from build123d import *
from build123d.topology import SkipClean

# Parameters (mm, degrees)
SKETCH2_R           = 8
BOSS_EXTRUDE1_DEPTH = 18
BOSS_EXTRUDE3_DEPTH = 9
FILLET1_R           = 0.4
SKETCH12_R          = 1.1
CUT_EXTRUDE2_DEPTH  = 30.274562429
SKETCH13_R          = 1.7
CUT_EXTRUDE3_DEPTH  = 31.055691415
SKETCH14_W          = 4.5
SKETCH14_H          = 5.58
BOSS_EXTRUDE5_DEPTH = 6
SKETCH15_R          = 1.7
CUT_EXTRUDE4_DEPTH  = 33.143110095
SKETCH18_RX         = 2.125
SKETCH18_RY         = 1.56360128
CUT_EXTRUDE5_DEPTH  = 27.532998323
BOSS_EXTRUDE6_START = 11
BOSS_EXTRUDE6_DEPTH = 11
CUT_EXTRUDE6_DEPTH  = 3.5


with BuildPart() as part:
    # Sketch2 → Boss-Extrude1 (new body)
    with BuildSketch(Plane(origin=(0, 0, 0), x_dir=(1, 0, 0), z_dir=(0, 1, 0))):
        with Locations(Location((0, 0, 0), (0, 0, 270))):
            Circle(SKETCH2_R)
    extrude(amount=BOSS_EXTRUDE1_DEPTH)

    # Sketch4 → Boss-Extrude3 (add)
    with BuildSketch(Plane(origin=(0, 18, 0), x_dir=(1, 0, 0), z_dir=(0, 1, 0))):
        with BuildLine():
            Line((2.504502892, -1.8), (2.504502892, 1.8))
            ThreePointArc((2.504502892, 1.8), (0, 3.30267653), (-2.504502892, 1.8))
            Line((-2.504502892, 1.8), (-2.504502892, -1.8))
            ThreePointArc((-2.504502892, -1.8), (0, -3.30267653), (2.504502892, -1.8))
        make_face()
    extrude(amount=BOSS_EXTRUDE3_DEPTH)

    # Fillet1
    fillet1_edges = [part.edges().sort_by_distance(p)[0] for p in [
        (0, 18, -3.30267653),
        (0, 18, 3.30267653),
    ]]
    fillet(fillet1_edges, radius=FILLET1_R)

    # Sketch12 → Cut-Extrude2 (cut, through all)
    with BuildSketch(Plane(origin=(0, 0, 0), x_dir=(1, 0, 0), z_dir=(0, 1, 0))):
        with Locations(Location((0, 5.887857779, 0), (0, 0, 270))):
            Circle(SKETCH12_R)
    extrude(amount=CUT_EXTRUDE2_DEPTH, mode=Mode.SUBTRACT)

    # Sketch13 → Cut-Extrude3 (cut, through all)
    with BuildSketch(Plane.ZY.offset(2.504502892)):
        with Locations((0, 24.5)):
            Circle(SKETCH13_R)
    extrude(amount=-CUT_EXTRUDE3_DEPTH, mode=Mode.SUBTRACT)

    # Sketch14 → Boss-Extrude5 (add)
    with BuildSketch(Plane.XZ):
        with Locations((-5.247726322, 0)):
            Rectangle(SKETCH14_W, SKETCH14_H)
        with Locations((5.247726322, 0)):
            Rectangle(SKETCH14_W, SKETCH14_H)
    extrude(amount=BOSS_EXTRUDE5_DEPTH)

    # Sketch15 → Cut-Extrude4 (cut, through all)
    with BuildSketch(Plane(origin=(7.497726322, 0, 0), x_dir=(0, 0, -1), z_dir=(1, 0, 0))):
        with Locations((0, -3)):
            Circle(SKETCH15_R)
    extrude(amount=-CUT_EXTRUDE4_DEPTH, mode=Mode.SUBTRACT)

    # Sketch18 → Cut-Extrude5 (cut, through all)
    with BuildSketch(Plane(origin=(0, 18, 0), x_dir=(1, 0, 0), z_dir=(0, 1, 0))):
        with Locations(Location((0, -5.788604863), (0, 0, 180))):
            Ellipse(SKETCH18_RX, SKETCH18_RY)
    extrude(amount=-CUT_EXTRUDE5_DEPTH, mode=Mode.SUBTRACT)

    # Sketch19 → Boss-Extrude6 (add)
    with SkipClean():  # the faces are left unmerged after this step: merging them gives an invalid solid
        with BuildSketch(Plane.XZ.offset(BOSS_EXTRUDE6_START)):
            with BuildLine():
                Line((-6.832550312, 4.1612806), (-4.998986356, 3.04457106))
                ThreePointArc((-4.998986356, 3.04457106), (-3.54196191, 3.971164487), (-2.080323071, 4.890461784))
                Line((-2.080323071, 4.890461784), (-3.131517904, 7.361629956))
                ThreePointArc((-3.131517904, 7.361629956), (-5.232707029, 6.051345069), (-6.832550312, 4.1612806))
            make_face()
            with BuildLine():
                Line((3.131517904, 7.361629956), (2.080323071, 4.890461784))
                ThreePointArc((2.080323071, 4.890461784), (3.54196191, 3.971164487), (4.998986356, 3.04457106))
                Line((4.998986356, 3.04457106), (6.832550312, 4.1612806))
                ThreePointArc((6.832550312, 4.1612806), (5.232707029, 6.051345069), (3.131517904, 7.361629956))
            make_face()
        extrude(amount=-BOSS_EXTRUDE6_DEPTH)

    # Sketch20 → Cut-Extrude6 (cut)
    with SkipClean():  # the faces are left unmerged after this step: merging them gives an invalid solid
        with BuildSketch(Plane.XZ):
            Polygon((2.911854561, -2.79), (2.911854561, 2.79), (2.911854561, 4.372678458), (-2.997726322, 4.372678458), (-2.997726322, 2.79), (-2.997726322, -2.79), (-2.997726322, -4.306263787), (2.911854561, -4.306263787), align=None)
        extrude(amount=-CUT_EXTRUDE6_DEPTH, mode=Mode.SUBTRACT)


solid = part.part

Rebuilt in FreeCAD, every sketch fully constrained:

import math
import FreeCAD as App
import Part
import Sketcher

V = App.Vector


def edges_at(feature, points):
    """Names of the edges that pass closest to the given points."""
    edges = feature.Shape.Edges
    near = lambda p: min(range(len(edges)), key=lambda i: edges[i].distToShape(Part.Vertex(*p))[0])
    return sorted({f"Edge{near(p) + 1}" for p in points})


def add_polygon(sketch, points):
    """Adds a closed chain of lines whose ends are joined by coincident constraints."""
    first, n = sketch.GeometryCount, len(points)
    for a, b in zip(points, points[1:] + points[:1]):
        sketch.addGeometry(Part.LineSegment(App.Vector(*a, 0), App.Vector(*b, 0)), False)
    for i in range(n):
        sketch.addConstraint(Sketcher.Constraint("Coincident", first + i, 2, first + (i + 1) % n, 1))

doc = App.newDocument("Part")
body = doc.addObject("PartDesign::Body", "Body")

sketch1 = body.newObject("Sketcher::SketchObject", "Sketch")
sketch1.AttachmentSupport = (doc.getObject("XZ_Plane"), [""])
sketch1.MapMode = "FlatFace"
sketch1.addGeometry(Part.Circle(V(0, 0, 0), V(0, 0, 1), 8), False)
sketch1.addConstraint([
    Sketcher.Constraint("Coincident", 0, 3, -1, 1),
    Sketcher.Constraint("Diameter", 0, 16.0),
])
pad1 = body.newObject("PartDesign::Pad", "Pad")
pad1.Profile = sketch1
pad1.Length = 18
pad1.Reversed = True

sketch2 = body.newObject("Sketcher::SketchObject", "Sketch001")
sketch2.AttachmentSupport = (doc.getObject("XZ_Plane"), [""])
sketch2.MapMode = "FlatFace"
sketch2.AttachmentOffset = App.Placement(V(0, 0, -18), App.Rotation())
sketch2.addGeometry([
    Part.LineSegment(V(2.5, 1.8, 0), V(2.5, -1.8, 0)),
    Part.ArcOfCircle(Part.Circle(V(0, -0.5, 0), V(0, 0, 1), 2.8), math.radians(-152), math.radians(-28)),
    Part.LineSegment(V(-2.5, -1.8, 0), V(-2.5, 1.8, 0)),
    Part.ArcOfCircle(Part.Circle(V(0, 0.5, 0), V(0, 0, 1), 2.8), math.radians(28), math.radians(152)),
], False)
sketch2.addConstraint([
    Sketcher.Constraint("Coincident", 0, 2, 1, 2),
    Sketcher.Constraint("Coincident", 1, 1, 2, 1),
    Sketcher.Constraint("Coincident", 2, 2, 3, 2),
    Sketcher.Constraint("Coincident", 3, 1, 0, 1),
    Sketcher.Constraint("Vertical", 0),
    Sketcher.Constraint("Vertical", 2),
    Sketcher.Constraint("Equal", 1, 3),
    Sketcher.Constraint("Symmetric", 1, 3, 3, 3, -1, 1),
    Sketcher.Constraint("Symmetric", 0, 2, 1, 1, -2),
    Sketcher.Constraint("DistanceY", 0, 2, 0, 1, 3.6),
    Sketcher.Constraint("Radius", 1, 2.838459),
    Sketcher.Constraint("DistanceY", 1, 3, -1, 1, 0.464218),
])
pad2 = body.newObject("PartDesign::Pad", "Pad001")
pad2.Profile = sketch2
pad2.Length = 9
pad2.Reversed = True
doc.recompute()

fillet = body.newObject("PartDesign::Fillet", "Fillet")
fillet.Base = (pad2, edges_at(pad2, [(0, 18, -3.303), (0, 18, 3.303)]))
fillet.Radius = 0.4

sketch3 = body.newObject("Sketcher::SketchObject", "Sketch002")
sketch3.AttachmentSupport = (doc.getObject("XZ_Plane"), [""])
sketch3.MapMode = "FlatFace"
sketch3.addGeometry(Part.Circle(V(0, -5.9, 0), V(0, 0, 1), 1.1), False)
sketch3.addConstraint([
    Sketcher.Constraint("PointOnObject", 0, 3, -2),
    Sketcher.Constraint("Diameter", 0, 2.2),
    Sketcher.Constraint("DistanceY", 0, 3, -1, 1, 5.887858),
])
pocket1 = body.newObject("PartDesign::Pocket", "Pocket")
pocket1.Profile = sketch3
pocket1.Type = "ThroughAll"

sketch4 = body.newObject("Sketcher::SketchObject", "Sketch003")
sketch4.AttachmentSupport = (doc.getObject("YZ_Plane"), [""])
sketch4.MapMode = "FlatFace"
sketch4.AttachmentOffset = App.Placement(V(0, 0, -2.504503), App.Rotation())
sketch4.addGeometry(Part.Circle(V(24.5, 0, 0), V(0, 0, 1), 1.7), False)
sketch4.addConstraint([
    Sketcher.Constraint("PointOnObject", 0, 3, -1),
    Sketcher.Constraint("Diameter", 0, 3.4),
    Sketcher.Constraint("DistanceX", -1, 1, 0, 3, 24.5),
])
pocket2 = body.newObject("PartDesign::Pocket", "Pocket001")
pocket2.Profile = sketch4
pocket2.Type = "ThroughAll"
pocket2.Reversed = True

sketch5 = body.newObject("Sketcher::SketchObject", "Sketch004")
sketch5.AttachmentSupport = (doc.getObject("XZ_Plane"), [""])
sketch5.MapMode = "FlatFace"
add_polygon(sketch5, [(-7.5, 2.8), (-7.5, -2.8), (-3, -2.8), (-3, 2.8)])
add_polygon(sketch5, [(3, 2.8), (3, -2.8), (7.5, -2.8), (7.5, 2.8)])
sketch5.addConstraint([
    Sketcher.Constraint("Vertical", 0),
    Sketcher.Constraint("Horizontal", 1),
    Sketcher.Constraint("Vertical", 2),
    Sketcher.Constraint("Horizontal", 3),
    Sketcher.Constraint("Vertical", 4),
    Sketcher.Constraint("Horizontal", 5),
    Sketcher.Constraint("Vertical", 6),
    Sketcher.Constraint("Horizontal", 7),
    Sketcher.Constraint("Symmetric", 2, 2, 4, 2, -1, 1),
    Sketcher.Constraint("Symmetric", 0, 2, 6, 2, -1, 1),
    Sketcher.Constraint("Horizontal", 1, 2, 4, 2),
    Sketcher.Constraint("DistanceX", 1, 1, 1, 2, 4.5),
    Sketcher.Constraint("DistanceY", 0, 2, 0, 1, 5.58),
    Sketcher.Constraint("DistanceX", 0, 2, -1, 1, 7.497726),
])
pad3 = body.newObject("PartDesign::Pad", "Pad002")
pad3.Profile = sketch5
pad3.Length = 6

sketch6 = body.newObject("Sketcher::SketchObject", "Sketch005")
sketch6.AttachmentSupport = (doc.getObject("YZ_Plane"), [""])
sketch6.MapMode = "FlatFace"
sketch6.AttachmentOffset = App.Placement(V(0, 0, 7.497726), App.Rotation())
sketch6.addGeometry(Part.Circle(V(-3, 0, 0), V(0, 0, 1), 1.7), False)
sketch6.addConstraint([
    Sketcher.Constraint("PointOnObject", 0, 3, -1),
    Sketcher.Constraint("Diameter", 0, 3.4),
    Sketcher.Constraint("DistanceX", 0, 3, -1, 1, 3.0),
])
pocket3 = body.newObject("PartDesign::Pocket", "Pocket002")
pocket3.Profile = sketch6
pocket3.Type = "ThroughAll"

sketch7 = body.newObject("Sketcher::SketchObject", "Sketch006")
sketch7.AttachmentSupport = (doc.getObject("XZ_Plane"), [""])
sketch7.MapMode = "FlatFace"
sketch7.AttachmentOffset = App.Placement(V(0, 0, -18), App.Rotation())
sketch7.addGeometry(Part.Ellipse(V(-2.125, 5.788605, 0), V(0, 4.225004, 0), V(0, 5.788605, 0)), False)
sketch7.addConstraint(Sketcher.Constraint("Block", 0))
pocket4 = body.newObject("PartDesign::Pocket", "Pocket003")
pocket4.Profile = sketch7
pocket4.Type = "ThroughAll"
pocket4.Reversed = True

sketch8 = body.newObject("Sketcher::SketchObject", "Sketch007")
sketch8.AttachmentSupport = (doc.getObject("XZ_Plane"), [""])
sketch8.MapMode = "FlatFace"
sketch8.AttachmentOffset = App.Placement(V(0, 0, 11), App.Rotation())
sketch8.addGeometry([
    Part.LineSegment(V(-6.8, 4.2, 0), V(-5, 3, 0)),
    Part.ArcOfCircle(Part.Circle(V(181.1, -287.9, 0), V(0, 0, 1), 345.4), math.radians(122.02), math.radians(122.6)),
    Part.LineSegment(V(-2.1, 4.9, 0), V(-3.1, 7.4, 0)),
    Part.ArcOfCircle(Part.Circle(V(0, 0, 0), V(0, 0, 1), 8), math.radians(113), math.radians(149)),
    Part.LineSegment(V(3.1, 7.4, 0), V(2.1, 4.9, 0)),
    Part.ArcOfCircle(Part.Circle(V(-181.1, -287.9, 0), V(0, 0, 1), 345.4), math.radians(57.4), math.radians(57.98)),
    Part.LineSegment(V(5, 3, 0), V(6.8, 4.2, 0)),
    Part.ArcOfCircle(Part.Circle(V(0, 0, 0), V(0, 0, 1), 8), math.radians(31), math.radians(67)),
], False)
sketch8.addConstraint([
    Sketcher.Constraint("Coincident", 0, 2, 1, 2),
    Sketcher.Constraint("Coincident", 1, 1, 2, 1),
    Sketcher.Constraint("Coincident", 2, 2, 3, 1),
    Sketcher.Constraint("Coincident", 3, 2, 0, 1),
    Sketcher.Constraint("Coincident", 4, 2, 5, 2),
    Sketcher.Constraint("Coincident", 5, 1, 6, 1),
    Sketcher.Constraint("Coincident", 6, 2, 7, 1),
    Sketcher.Constraint("Coincident", 7, 2, 4, 1),
    Sketcher.Constraint("Coincident", 3, 3, -1, 1),
    Sketcher.Constraint("Coincident", 7, 3, -1, 1),
    Sketcher.Constraint("Equal", 1, 5),
    Sketcher.Constraint("Equal", 3, 7),
    Sketcher.Constraint("Symmetric", 1, 3, 5, 3, -2),
    Sketcher.Constraint("Horizontal", 1, 1, 4, 2),
    Sketcher.Constraint("Horizontal", 0, 2, 5, 1),
    Sketcher.Constraint("Horizontal", 3, 2, 6, 2),
    Sketcher.Constraint("Horizontal", 2, 2, 7, 2),
    Sketcher.Constraint("Radius", 3, 8.0),
    Sketcher.Constraint("Radius", 1, 345.366233),
    Sketcher.Constraint("DistanceX", 5, 3, 1, 1, 178.981302),
    Sketcher.Constraint("DistanceY", -1, 1, 0, 2, 3.044571),
    Sketcher.Constraint("DistanceY", -1, 1, 1, 1, 4.890462),
    Sketcher.Constraint("DistanceY", -1, 1, 2, 2, 7.36163),
    Sketcher.Constraint("DistanceX", 3, 2, -1, 1, 6.83255),
    Sketcher.Constraint("DistanceX", 5, 3, 1, 3, 362.123249),
])
pad4 = body.newObject("PartDesign::Pad", "Pad003")
pad4.Profile = sketch8
pad4.Length = 11
pad4.Reversed = True

sketch9 = body.newObject("Sketcher::SketchObject", "Sketch008")
sketch9.AttachmentSupport = (doc.getObject("XZ_Plane"), [""])
sketch9.MapMode = "FlatFace"
add_polygon(sketch9, [(3, 4), (-3, 4), (-3, -4), (3, -4)])
sketch9.addConstraint([
    Sketcher.Constraint("Horizontal", 0),
    Sketcher.Constraint("Vertical", 1),
    Sketcher.Constraint("Horizontal", 2),
    Sketcher.Constraint("Vertical", 3),
    Sketcher.Constraint("DistanceX", 0, 2, 0, 1, 5.909581),
    Sketcher.Constraint("DistanceY", 1, 2, 1, 1, 8.678942),
    Sketcher.Constraint("DistanceY", -1, 1, 0, 2, 4.372678),
    Sketcher.Constraint("DistanceX", 0, 2, -1, 1, 2.997726),
])
pocket5 = body.newObject("PartDesign::Pocket", "Pocket004")
pocket5.Profile = sketch9
pocket5.Length = 3.5

doc.recompute()
